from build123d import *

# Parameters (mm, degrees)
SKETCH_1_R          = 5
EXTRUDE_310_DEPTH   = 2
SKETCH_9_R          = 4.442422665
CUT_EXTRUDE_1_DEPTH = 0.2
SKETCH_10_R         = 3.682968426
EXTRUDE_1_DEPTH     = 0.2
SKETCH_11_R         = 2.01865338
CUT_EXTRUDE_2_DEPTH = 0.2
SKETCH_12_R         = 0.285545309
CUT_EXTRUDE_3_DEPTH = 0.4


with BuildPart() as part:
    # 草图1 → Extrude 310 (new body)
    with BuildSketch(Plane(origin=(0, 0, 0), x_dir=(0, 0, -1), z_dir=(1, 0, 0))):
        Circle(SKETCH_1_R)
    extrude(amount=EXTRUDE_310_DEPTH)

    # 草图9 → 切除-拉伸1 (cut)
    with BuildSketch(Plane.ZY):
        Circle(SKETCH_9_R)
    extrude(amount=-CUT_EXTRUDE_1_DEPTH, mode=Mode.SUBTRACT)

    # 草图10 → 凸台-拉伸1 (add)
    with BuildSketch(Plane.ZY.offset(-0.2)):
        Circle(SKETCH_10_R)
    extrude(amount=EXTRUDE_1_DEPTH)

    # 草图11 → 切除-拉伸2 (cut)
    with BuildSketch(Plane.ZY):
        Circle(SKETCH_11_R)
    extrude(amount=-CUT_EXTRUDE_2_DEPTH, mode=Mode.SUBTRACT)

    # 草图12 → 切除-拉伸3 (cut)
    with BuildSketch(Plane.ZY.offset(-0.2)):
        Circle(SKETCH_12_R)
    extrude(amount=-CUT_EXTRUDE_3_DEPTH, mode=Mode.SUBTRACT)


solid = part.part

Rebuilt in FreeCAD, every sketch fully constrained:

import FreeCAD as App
import Part
import Sketcher

V = App.Vector
Q = App.Units.Quantity

doc = App.newDocument("Part")
params = doc.addObject("Spreadsheet::Sheet", "Params")
for row, (alias, value) in enumerate([
    ("sketch1_diameter", "10 mm"),
    ("pad1_length", "2 mm"),
    ("pocket1_length", "0.2 mm"),
    ("pad2_length", "0.2 mm"),
    ("pocket2_length", "0.2 mm"),
    ("pocket3_length", "0.4 mm"),
], start=1):
    params.set(f"A{row}", alias)
    params.set(f"B{row}", "=" + value)
    params.setAlias(f"B{row}", alias)

body = doc.addObject("PartDesign::Body", "Body")

sketch1 = body.newObject("Sketcher::SketchObject", "Sketch")
sketch1.AttachmentSupport = (doc.getObject("YZ_Plane"), [""])
sketch1.MapMode = "FlatFace"
sketch1.addGeometry(Part.Circle(V(0, 0, 0), V(0, 0, 1), 5), False)
sketch1.addConstraint(Sketcher.Constraint("Coincident", 0, 3, -1, 1))
sketch1.addConstraint(Sketcher.Constraint("Diameter", 0, Q("10 mm")))
sketch1.setExpression("Constraints[1]", "Params.sketch1_diameter")
pad1 = body.newObject("PartDesign::Pad", "Pad")
pad1.Profile = sketch1
pad1.setExpression("Length", "Params.pad1_length")

sketch2 = body.newObject("Sketcher::SketchObject", "Sketch001")
sketch2.AttachmentSupport = (doc.getObject("YZ_Plane"), [""])
sketch2.MapMode = "FlatFace"
sketch2.addGeometry(Part.Circle(V(0, 0, 0), V(0, 0, 1), 4.4), False)
sketch2.addConstraint(Sketcher.Constraint("Coincident", 0, 3, -1, 1))
sketch2.addConstraint(Sketcher.Constraint("Diameter", 0, Q("8.884845 mm")))
pocket1 = body.newObject("PartDesign::Pocket", "Pocket")
pocket1.Profile = sketch2
pocket1.setExpression("Length", "Params.pocket1_length")
pocket1.Reversed = True

sketch3 = body.newObject("Sketcher::SketchObject", "Sketch002")
sketch3.AttachmentSupport = (doc.getObject("YZ_Plane"), [""])
sketch3.MapMode = "FlatFace"
sketch3.AttachmentOffset = App.Placement(V(0, 0, 0.2), App.Rotation())
sketch3.addGeometry(Part.Circle(V(0, 0, 0), V(0, 0, 1), 3.7), False)
sketch3.addConstraint(Sketcher.Constraint("Coincident", 0, 3, -1, 1))
sketch3.addConstraint(Sketcher.Constraint("Diameter", 0, Q("7.365937 mm")))
pad2 = body.newObject("PartDesign::Pad", "Pad001")
pad2.Profile = sketch3
pad2.setExpression("Length", "Params.pad2_length")
pad2.Reversed = True

sketch4 = body.newObject("Sketcher::SketchObject", "Sketch003")
sketch4.AttachmentSupport = (doc.getObject("YZ_Plane"), [""])
sketch4.MapMode = "FlatFace"
sketch4.addGeometry(Part.Circle(V(0, 0, 0), V(0, 0, 1), 2), False)
sketch4.addConstraint(Sketcher.Constraint("Coincident", 0, 3, -1, 1))
sketch4.addConstraint(Sketcher.Constraint("Diameter", 0, Q("4.037307 mm")))
pocket2 = body.newObject("PartDesign::Pocket", "Pocket001")
pocket2.Profile = sketch4
pocket2.setExpression("Length", "Params.pocket2_length")
pocket2.Reversed = True

sketch5 = body.newObject("Sketcher::SketchObject", "Sketch004")
sketch5.AttachmentSupport = (doc.getObject("YZ_Plane"), [""])
sketch5.MapMode = "FlatFace"
sketch5.AttachmentOffset = App.Placement(V(0, 0, 0.2), App.Rotation())
sketch5.addGeometry(Part.Circle(V(0, 0, 0), V(0, 0, 1), 0.29), False)
sketch5.addConstraint(Sketcher.Constraint("Coincident", 0, 3, -1, 1))
sketch5.addConstraint(Sketcher.Constraint("Diameter", 0, Q("0.571091 mm")))
pocket3 = body.newObject("PartDesign::Pocket", "Pocket002")
pocket3.Profile = sketch5
pocket3.setExpression("Length", "Params.pocket3_length")
pocket3.Reversed = True

doc.recompute()
